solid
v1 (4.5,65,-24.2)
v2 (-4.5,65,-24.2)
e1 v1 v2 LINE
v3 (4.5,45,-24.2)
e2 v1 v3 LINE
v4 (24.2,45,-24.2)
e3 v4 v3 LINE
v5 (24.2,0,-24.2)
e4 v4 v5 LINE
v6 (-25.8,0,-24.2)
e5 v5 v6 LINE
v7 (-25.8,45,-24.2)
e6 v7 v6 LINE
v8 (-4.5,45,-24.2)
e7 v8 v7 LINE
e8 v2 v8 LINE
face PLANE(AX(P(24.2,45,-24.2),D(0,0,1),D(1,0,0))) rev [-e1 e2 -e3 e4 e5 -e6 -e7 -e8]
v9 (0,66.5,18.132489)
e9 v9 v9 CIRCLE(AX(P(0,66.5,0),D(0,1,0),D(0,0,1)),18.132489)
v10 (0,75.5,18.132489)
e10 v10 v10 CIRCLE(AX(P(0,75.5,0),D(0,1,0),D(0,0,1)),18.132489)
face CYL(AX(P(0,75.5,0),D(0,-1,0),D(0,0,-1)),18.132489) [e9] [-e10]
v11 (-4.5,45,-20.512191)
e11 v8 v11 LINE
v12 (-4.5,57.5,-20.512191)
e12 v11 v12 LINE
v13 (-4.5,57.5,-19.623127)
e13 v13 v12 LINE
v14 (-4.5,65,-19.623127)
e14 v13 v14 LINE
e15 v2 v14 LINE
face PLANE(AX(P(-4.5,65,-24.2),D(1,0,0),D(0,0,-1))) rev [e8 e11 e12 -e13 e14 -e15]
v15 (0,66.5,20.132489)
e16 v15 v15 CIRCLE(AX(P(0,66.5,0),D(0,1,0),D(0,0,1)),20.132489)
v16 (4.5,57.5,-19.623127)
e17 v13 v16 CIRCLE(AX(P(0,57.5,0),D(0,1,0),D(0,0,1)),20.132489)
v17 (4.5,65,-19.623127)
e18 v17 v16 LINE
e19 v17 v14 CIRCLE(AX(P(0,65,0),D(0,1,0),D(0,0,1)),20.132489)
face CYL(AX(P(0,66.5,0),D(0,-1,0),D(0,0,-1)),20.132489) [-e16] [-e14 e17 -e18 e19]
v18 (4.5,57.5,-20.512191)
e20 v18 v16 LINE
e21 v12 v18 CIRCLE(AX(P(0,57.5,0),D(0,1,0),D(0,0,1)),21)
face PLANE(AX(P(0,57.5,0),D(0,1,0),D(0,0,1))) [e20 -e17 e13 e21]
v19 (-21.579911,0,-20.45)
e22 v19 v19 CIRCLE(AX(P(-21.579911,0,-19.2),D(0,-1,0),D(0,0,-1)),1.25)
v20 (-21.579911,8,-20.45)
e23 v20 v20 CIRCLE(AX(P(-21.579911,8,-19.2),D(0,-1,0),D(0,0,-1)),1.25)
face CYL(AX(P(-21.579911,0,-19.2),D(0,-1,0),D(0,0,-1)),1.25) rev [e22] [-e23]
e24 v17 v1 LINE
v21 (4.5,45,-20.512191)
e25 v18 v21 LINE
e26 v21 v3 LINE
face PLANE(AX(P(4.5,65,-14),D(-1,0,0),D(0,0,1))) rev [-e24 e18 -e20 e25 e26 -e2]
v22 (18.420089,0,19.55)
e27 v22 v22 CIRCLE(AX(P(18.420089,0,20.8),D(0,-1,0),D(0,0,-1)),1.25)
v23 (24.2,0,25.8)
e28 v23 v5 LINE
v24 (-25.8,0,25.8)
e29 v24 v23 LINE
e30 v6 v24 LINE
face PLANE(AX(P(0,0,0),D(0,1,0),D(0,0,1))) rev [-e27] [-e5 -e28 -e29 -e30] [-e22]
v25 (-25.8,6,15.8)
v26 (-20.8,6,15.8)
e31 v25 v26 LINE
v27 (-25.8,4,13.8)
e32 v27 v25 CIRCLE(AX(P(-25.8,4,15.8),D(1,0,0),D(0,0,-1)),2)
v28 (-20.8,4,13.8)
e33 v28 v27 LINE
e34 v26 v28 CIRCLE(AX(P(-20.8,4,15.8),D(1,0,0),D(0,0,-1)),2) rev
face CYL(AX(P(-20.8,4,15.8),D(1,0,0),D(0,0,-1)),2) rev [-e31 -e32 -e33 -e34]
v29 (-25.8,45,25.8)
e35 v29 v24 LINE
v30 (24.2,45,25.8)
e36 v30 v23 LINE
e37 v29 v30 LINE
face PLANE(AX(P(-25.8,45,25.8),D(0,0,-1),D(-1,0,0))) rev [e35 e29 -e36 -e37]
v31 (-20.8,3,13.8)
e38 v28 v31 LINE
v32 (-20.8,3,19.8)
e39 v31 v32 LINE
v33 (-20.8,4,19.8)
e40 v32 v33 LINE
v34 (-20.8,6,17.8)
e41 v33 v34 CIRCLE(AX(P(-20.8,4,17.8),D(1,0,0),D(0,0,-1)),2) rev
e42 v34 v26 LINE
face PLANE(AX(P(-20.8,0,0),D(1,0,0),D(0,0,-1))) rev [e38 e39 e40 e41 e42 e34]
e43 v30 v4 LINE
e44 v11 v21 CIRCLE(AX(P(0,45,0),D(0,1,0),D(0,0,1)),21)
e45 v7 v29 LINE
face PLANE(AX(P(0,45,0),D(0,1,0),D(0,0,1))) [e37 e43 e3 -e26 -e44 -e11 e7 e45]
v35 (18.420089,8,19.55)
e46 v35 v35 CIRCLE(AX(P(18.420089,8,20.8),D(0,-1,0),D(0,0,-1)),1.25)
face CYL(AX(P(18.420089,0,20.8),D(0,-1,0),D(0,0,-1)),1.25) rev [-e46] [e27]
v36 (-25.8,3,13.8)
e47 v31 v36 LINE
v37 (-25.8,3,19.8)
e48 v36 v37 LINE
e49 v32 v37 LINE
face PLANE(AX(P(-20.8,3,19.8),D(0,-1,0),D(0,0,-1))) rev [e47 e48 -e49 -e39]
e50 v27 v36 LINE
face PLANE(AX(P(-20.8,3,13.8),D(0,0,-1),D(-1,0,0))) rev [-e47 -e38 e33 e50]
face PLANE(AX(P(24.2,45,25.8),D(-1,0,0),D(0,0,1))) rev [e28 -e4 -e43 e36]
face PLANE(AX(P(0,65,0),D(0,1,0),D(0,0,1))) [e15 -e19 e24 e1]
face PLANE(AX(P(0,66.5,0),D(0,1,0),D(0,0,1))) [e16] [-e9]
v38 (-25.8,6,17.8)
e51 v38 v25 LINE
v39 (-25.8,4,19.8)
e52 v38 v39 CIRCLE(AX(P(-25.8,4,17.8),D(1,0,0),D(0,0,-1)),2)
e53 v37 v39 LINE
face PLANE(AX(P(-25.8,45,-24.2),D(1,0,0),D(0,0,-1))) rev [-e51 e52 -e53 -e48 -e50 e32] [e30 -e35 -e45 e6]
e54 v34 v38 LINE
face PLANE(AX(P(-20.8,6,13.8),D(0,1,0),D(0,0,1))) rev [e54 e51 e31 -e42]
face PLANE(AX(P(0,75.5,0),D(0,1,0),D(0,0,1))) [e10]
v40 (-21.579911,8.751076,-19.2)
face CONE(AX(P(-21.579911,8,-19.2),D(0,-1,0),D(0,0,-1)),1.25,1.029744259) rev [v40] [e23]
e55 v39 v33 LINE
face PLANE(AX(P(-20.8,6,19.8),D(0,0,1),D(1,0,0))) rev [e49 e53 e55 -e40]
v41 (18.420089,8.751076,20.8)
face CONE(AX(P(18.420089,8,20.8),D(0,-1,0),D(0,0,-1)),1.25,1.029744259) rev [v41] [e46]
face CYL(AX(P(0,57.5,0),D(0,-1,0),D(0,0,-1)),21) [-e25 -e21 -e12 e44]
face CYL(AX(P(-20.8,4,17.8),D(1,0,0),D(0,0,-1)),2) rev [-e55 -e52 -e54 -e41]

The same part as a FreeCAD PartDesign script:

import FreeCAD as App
import Part
import Sketcher
Q = App.Units.Quantity


def edges_at(feature, points):
    """Names of the edges that pass closest to the given points."""
    edges = feature.Shape.Edges
    near = lambda p: min(range(len(edges)), key=lambda i: edges[i].distToShape(Part.Vertex(*p))[0])
    return sorted({f"Edge{near(p) + 1}" for p in points})


def add_polygon(sketch, points):
    """Adds a closed chain of lines whose ends are joined by coincident constraints."""
    first, n = sketch.GeometryCount, len(points)
    for a, b in zip(points, points[1:] + points[:1]):
        sketch.addGeometry(Part.LineSegment(App.Vector(*a, 0), App.Vector(*b, 0)), False)
    for i in range(n):
        sketch.addConstraint(Sketcher.Constraint("Coincident", first + i, 2, first + (i + 1) % n, 1))

doc = App.newDocument("Part")
body = doc.addObject("PartDesign::Body", "Body")

# Sketch on XZ plane
sketch1 = body.newObject("Sketcher::SketchObject", "Sketch")
sketch1.AttachmentSupport = (doc.getObject("XZ_Plane"), [""])
sketch1.MapMode = "FlatFace"
add_polygon(sketch1, [(24, 26), (24, -24), (-26, -24), (-26, 26)])  # lines 0-3
sketch1.addConstraint(Sketcher.Constraint("Vertical", 0))
sketch1.addConstraint(Sketcher.Constraint("Horizontal", 1))
sketch1.addConstraint(Sketcher.Constraint("Vertical", 2))
sketch1.addConstraint(Sketcher.Constraint("Horizontal", 3))
sketch1.addConstraint(Sketcher.Constraint("Equal", 3, 0))
sketch1.addConstraint(Sketcher.Constraint("DistanceX", 1, 2, 1, 1, Q("50 mm")))
sketch1.addConstraint(Sketcher.Constraint("DistanceX", -1, 1, 0, 2, Q("24.2 mm")))
sketch1.addConstraint(Sketcher.Constraint("DistanceY", 0, 2, -1, 1, Q("24.2 mm")))
pad1 = body.newObject("PartDesign::Pad", "Pad")
pad1.Profile = sketch1
pad1.Length = 45
pad1.Reversed = True

# Sketch on XZ plane
sketch2 = body.newObject("Sketcher::SketchObject", "Sketch001")
sketch2.AttachmentSupport = (doc.getObject("XZ_Plane"), [""])
sketch2.MapMode = "FlatFace"
sketch2.AttachmentOffset = App.Placement(App.Vector(0, 0, -45), App.Rotation())
sketch2.addGeometry(Part.Circle(App.Vector(0, 0, 0), App.Vector(0, 0, 1), 21), False)
sketch2.addConstraint(Sketcher.Constraint("Coincident", 0, 3, -1, 1))
sketch2.addConstraint(Sketcher.Constraint("Diameter", 0, Q("42 mm")))
pad2 = body.newObject("PartDesign::Pad", "Pad001")
pad2.Profile = sketch2
pad2.Length = 12.5
pad2.Reversed = True

# Sketch on XZ plane
sketch3 = body.newObject("Sketcher::SketchObject", "Sketch002")
sketch3.AttachmentSupport = (doc.getObject("XZ_Plane"), [""])
sketch3.MapMode = "FlatFace"
sketch3.AttachmentOffset = App.Placement(App.Vector(0, 0, -57.5), App.Rotation())
sketch3.addGeometry(Part.Circle(App.Vector(0, 0, 0), App.Vector(0, 0, 1), 20), False)
sketch3.addConstraint(Sketcher.Constraint("Coincident", 0, 3, -1, 1))
sketch3.addConstraint(Sketcher.Constraint("Diameter", 0, Q("40.264978 mm")))
pad3 = body.newObject("PartDesign::Pad", "Pad002")
pad3.Profile = sketch3
pad3.Length = 9
pad3.Reversed = True

# Sketch on XZ plane
sketch4 = body.newObject("Sketcher::SketchObject", "Sketch003")
sketch4.AttachmentSupport = (doc.getObject("XZ_Plane"), [""])
sketch4.MapMode = "FlatFace"
sketch4.AttachmentOffset = App.Placement(App.Vector(0, 0, -66.5), App.Rotation())
sketch4.addGeometry(Part.Circle(App.Vector(0, 0, 0), App.Vector(0, 0, 1), 18), False)
sketch4.addConstraint(Sketcher.Constraint("Coincident", 0, 3, -1, 1))
sketch4.addConstraint(Sketcher.Constraint("Diameter", 0, Q("36.264978 mm")))
pad4 = body.newObject("PartDesign::Pad", "Pad003")
pad4.Profile = sketch4
pad4.Length = 9
pad4.Reversed = True

# Sketch on XZ plane
sketch5 = body.newObject("Sketcher::SketchObject", "Sketch004")
sketch5.AttachmentSupport = (doc.getObject("XZ_Plane"), [""])
sketch5.MapMode = "FlatFace"
sketch5.AttachmentOffset = App.Placement(App.Vector(0, 0, -45), App.Rotation())
add_polygon(sketch5, [(-4, -24), (-4, -14), (4, -14), (4, -24)])  # lines 0-3
sketch5.addConstraint(Sketcher.Constraint("Vertical", 0))
sketch5.addConstraint(Sketcher.Constraint("Horizontal", 1))
sketch5.addConstraint(Sketcher.Constraint("Vertical", 2))
sketch5.addConstraint(Sketcher.Constraint("Horizontal", 3))
sketch5.addConstraint(Sketcher.Constraint("DistanceX", 1, 1, 1, 2, Q("9 mm")))
sketch5.addConstraint(Sketcher.Constraint("DistanceY", 0, 1, 0, 2, Q("10.2 mm")))
sketch5.addConstraint(Sketcher.Constraint("DistanceY", 0, 2, -1, 1, Q("14 mm")))
sketch5.addConstraint(Sketcher.Constraint("DistanceX", 0, 2, -1, 1, Q("4.5 mm")))
pad5 = body.newObject("PartDesign::Pad", "Pad004")
pad5.Profile = sketch5
pad5.Length = 20
pad5.Reversed = True

# Sketch on XZ plane
sketch6 = body.newObject("Sketcher::SketchObject", "Sketch005")
sketch6.AttachmentSupport = (doc.getObject("XZ_Plane"), [""])
sketch6.MapMode = "FlatFace"
sketch6.addGeometry(Part.Circle(App.Vector(18.4, 20.8, 0), App.Vector(0, 0, 1), 1.2), False)
sketch6.addGeometry(Part.Circle(App.Vector(-21.6, -19.2, 0), App.Vector(0, 0, 1), 1.2), False)
sketch6.addConstraint(Sketcher.Constraint("Equal", 0, 1))
sketch6.addConstraint(Sketcher.Constraint("Diameter", 0, Q("2.5 mm")))
sketch6.addConstraint(Sketcher.Constraint("DistanceX", 1, 3, 0, 3, Q("40 mm")))
sketch6.addConstraint(Sketcher.Constraint("DistanceY", 1, 3, 0, 3, Q("40 mm")))
sketch6.addConstraint(Sketcher.Constraint("DistanceY", -1, 1, 0, 3, Q("20.8 mm")))
sketch6.addConstraint(Sketcher.Constraint("DistanceX", -1, 1, 0, 3, Q("18.420089 mm")))
doc.recompute()
hole = body.newObject("PartDesign::Hole", "Hole")
hole.Profile = sketch6
hole.ThreadType = "None"
hole.Diameter = 2.5
hole.DepthType = "Dimension"
hole.Depth = 8
hole.DrillPoint = "Angled"
hole.DrillPointAngle = 118

# Sketch on YZ plane
sketch7 = body.newObject("Sketcher::SketchObject", "Sketch006")
sketch7.AttachmentSupport = (doc.getObject("YZ_Plane"), [""])
sketch7.MapMode = "FlatFace"
sketch7.AttachmentOffset = App.Placement(App.Vector(0, 0, -25.8), App.Rotation())
add_polygon(sketch7, [(6, 13.8), (3, 13.8), (3, 19.8), (6, 19.8)])  # lines 0-3
sketch7.addConstraint(Sketcher.Constraint("Horizontal", 0))
sketch7.addConstraint(Sketcher.Constraint("Vertical", 1))
sketch7.addConstraint(Sketcher.Constraint("Horizontal", 2))
sketch7.addConstraint(Sketcher.Constraint("Vertical", 3))
sketch7.addConstraint(Sketcher.Constraint("DistanceX", 0, 2, 0, 1, Q("3 mm")))
sketch7.addConstraint(Sketcher.Constraint("DistanceY", 1, 1, 1, 2, Q("6 mm")))
sketch7.addConstraint(Sketcher.Constraint("DistanceX", -1, 1, 0, 2, Q("3 mm")))
sketch7.addConstraint(Sketcher.Constraint("DistanceY", -1, 1, 0, 2, Q("13.8 mm")))
pocket1 = body.newObject("PartDesign::Pocket", "Pocket")
pocket1.Profile = sketch7
pocket1.Length = 5
pocket1.Reversed = True
doc.recompute()

fillet = body.newObject("PartDesign::Fillet", "Fillet")
fillet.Base = (pocket1, edges_at(pocket1, [(-23.3, 6, 13.8), (-23.3, 6, 19.8)]))
fillet.Radius = 2

doc.recompute()
